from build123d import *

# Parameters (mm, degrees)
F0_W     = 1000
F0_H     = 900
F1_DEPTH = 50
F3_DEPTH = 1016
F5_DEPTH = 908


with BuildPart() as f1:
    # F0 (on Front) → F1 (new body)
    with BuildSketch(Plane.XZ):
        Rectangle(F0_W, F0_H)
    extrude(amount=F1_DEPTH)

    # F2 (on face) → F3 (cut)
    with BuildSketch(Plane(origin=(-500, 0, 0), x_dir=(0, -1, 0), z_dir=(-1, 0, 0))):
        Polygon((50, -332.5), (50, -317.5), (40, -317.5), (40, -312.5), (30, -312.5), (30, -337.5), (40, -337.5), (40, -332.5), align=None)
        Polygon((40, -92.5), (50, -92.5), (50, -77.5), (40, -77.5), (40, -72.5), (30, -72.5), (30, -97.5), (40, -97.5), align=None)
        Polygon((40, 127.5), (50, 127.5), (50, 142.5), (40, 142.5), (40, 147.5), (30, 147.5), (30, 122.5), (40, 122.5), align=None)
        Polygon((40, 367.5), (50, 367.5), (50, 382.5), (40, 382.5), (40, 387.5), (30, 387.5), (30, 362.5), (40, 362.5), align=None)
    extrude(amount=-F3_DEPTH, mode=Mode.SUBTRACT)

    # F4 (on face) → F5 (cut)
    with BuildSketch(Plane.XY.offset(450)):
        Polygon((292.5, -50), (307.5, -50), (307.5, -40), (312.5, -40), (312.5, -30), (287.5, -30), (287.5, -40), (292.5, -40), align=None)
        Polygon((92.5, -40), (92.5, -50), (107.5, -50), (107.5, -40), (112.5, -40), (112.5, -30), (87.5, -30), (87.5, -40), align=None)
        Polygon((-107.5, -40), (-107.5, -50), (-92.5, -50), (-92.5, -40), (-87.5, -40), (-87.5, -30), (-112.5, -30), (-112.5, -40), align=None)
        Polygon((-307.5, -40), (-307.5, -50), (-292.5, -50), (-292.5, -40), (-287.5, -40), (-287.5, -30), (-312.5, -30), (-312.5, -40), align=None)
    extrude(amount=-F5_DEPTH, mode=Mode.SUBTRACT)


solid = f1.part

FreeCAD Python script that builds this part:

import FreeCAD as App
import Part
import Sketcher
Q = App.Units.Quantity


def add_polygon(sketch, points):
    """Adds a closed chain of lines whose ends are joined by coincident constraints."""
    first, n = sketch.GeometryCount, len(points)
    for a, b in zip(points, points[1:] + points[:1]):
        sketch.addGeometry(Part.LineSegment(App.Vector(*a, 0), App.Vector(*b, 0)), False)
    for i in range(n):
        sketch.addConstraint(Sketcher.Constraint("Coincident", first + i, 2, first + (i + 1) % n, 1))

doc = App.newDocument("Part")
body = doc.addObject("PartDesign::Body", "Body")

# Sketch on XZ plane
sketch1 = body.newObject("Sketcher::SketchObject", "Sketch")
sketch1.AttachmentSupport = (doc.getObject("XZ_Plane"), [""])
sketch1.MapMode = "FlatFace"
add_polygon(sketch1, [(-500, 450), (-500, -450), (500, -450), (500, 450)])  # lines 0-3
sketch1.addConstraint([
    Sketcher.Constraint("Vertical", 0),
    Sketcher.Constraint("Horizontal", 1),
    Sketcher.Constraint("Vertical", 2),
    Sketcher.Constraint("Horizontal", 3),
    Sketcher.Constraint("Symmetric", 0, 2, 2, 2, -1, 1),
    Sketcher.Constraint("DistanceX", 1, 1, 1, 2, Q("1000 mm")),
    Sketcher.Constraint("DistanceY", 0, 2, 0, 1, Q("900 mm")),
])
pad1 = body.newObject("PartDesign::Pad", "Pad")
pad1.Profile = sketch1
pad1.Length = 50

# Sketch on YZ plane
sketch2 = body.newObject("Sketcher::SketchObject", "Sketch001")
sketch2.AttachmentSupport = (doc.getObject("YZ_Plane"), [""])
sketch2.MapMode = "FlatFace"
sketch2.AttachmentOffset = App.Placement(App.Vector(0, 0, -500), App.Rotation())
add_polygon(sketch2, [(-50, -332), (-50, -318), (-40, -318), (-40, -312), (-30, -312), (-30, -338), (-40, -338), (-40, -332)])  # lines 0-7
add_polygon(sketch2, [(-40, -92), (-50, -92), (-50, -78), (-40, -78), (-40, -72), (-30, -72), (-30, -98), (-40, -98)])  # lines 8-15
add_polygon(sketch2, [(-40, 128), (-50, 128), (-50, 142), (-40, 142), (-40, 148), (-30, 148), (-30, 122), (-40, 122)])  # lines 16-23
add_polygon(sketch2, [(-40, 368), (-50, 368), (-50, 382), (-40, 382), (-40, 388), (-30, 388), (-30, 362), (-40, 362)])  # lines 24-31
sketch2.addConstraint([
    Sketcher.Constraint("Vertical", 0),
    Sketcher.Constraint("Horizontal", 1),
    Sketcher.Constraint("Vertical", 2),
    Sketcher.Constraint("Horizontal", 3),
    Sketcher.Constraint("Vertical", 4),
    Sketcher.Constraint("Horizontal", 5),
    Sketcher.Constraint("Vertical", 6),
    Sketcher.Constraint("Horizontal", 7),
    Sketcher.Constraint("Horizontal", 8),
    Sketcher.Constraint("Vertical", 9),
    Sketcher.Constraint("Horizontal", 10),
    Sketcher.Constraint("Vertical", 11),
    Sketcher.Constraint("Horizontal", 12),
    Sketcher.Constraint("Vertical", 13),
    Sketcher.Constraint("Horizontal", 14),
    Sketcher.Constraint("Vertical", 15),
    Sketcher.Constraint("Horizontal", 16),
    Sketcher.Constraint("Vertical", 17),
    Sketcher.Constraint("Horizontal", 18),
    Sketcher.Constraint("Vertical", 19),
    Sketcher.Constraint("Horizontal", 20),
    Sketcher.Constraint("Vertical", 21),
    Sketcher.Constraint("Horizontal", 22),
    Sketcher.Constraint("Vertical", 23),
    Sketcher.Constraint("Horizontal", 24),
    Sketcher.Constraint("Vertical", 25),
    Sketcher.Constraint("Horizontal", 26),
    Sketcher.Constraint("Vertical", 27),
    Sketcher.Constraint("Horizontal", 28),
    Sketcher.Constraint("Vertical", 29),
    Sketcher.Constraint("Horizontal", 30),
    Sketcher.Constraint("Vertical", 31),
    Sketcher.Constraint("Vertical", 2, 2, 5, 2),
    Sketcher.Constraint("Vertical", 7, 2, 8, 2),
    Sketcher.Constraint("Vertical", 6, 2, 10, 2),
    Sketcher.Constraint("Vertical", 4, 2, 12, 2),
    Sketcher.Constraint("Vertical", 11, 2, 14, 2),
    Sketcher.Constraint("Vertical", 9, 2, 16, 2),
    Sketcher.Constraint("Vertical", 15, 2, 18, 2),
    Sketcher.Constraint("Vertical", 13, 2, 20, 2),
    Sketcher.Constraint("Vertical", 19, 2, 22, 2),
    Sketcher.Constraint("Vertical", 17, 2, 24, 2),
    Sketcher.Constraint("Vertical", 23, 2, 26, 2),
    Sketcher.Constraint("Vertical", 21, 2, 28, 2),
    Sketcher.Constraint("Vertical", 27, 2, 30, 2),
    Sketcher.Constraint("Equal", 1, 3),
    Sketcher.Constraint("Equal", 2, 6),
    Sketcher.Constraint("Equal", 0, 9),
    Sketcher.Constraint("Equal", 6, 11),
    Sketcher.Constraint("Equal", 4, 13),
    Sketcher.Constraint("Equal", 9, 17),
    Sketcher.Constraint("Equal", 15, 19),
    Sketcher.Constraint("Equal", 13, 21),
    Sketcher.Constraint("Equal", 17, 25),
    Sketcher.Constraint("Equal", 23, 27),
    Sketcher.Constraint("Equal", 21, 29),
    Sketcher.Constraint("DistanceX", 1, 1, 1, 2, Q("10 mm")),
    Sketcher.Constraint("DistanceY", 0, 1, 0, 2, Q("15 mm")),
    Sketcher.Constraint("DistanceY", 2, 1, 2, 2, Q("5 mm")),
    Sketcher.Constraint("DistanceX", 0, 2, -1, 1, Q("50 mm")),
    Sketcher.Constraint("DistanceY", 2, 2, 8, 2, Q("220 mm")),
    Sketcher.Constraint("DistanceY", 11, 2, 16, 2, Q("200 mm")),
    Sketcher.Constraint("DistanceY", 19, 2, 24, 2, Q("220 mm")),
    Sketcher.Constraint("DistanceY", 0, 2, -1, 1, Q("317.5 mm")),
])
pocket1 = body.newObject("PartDesign::Pocket", "Pocket")
pocket1.Profile = sketch2
pocket1.Length = 1016
pocket1.Reversed = True

# Sketch on XY plane
sketch3 = body.newObject("Sketcher::SketchObject", "Sketch002")
sketch3.AttachmentSupport = (doc.getObject("XY_Plane"), [""])
sketch3.MapMode = "FlatFace"
sketch3.AttachmentOffset = App.Placement(App.Vector(0, 0, 450), App.Rotation())
add_polygon(sketch3, [(292, -50), (308, -50), (308, -40), (312, -40), (312, -30), (288, -30), (288, -40), (292, -40)])  # lines 0-7
add_polygon(sketch3, [(92, -40), (92, -50), (108, -50), (108, -40), (112, -40), (112, -30), (88, -30), (88, -40)])  # lines 8-15
add_polygon(sketch3, [(-108, -40), (-108, -50), (-92, -50), (-92, -40), (-88, -40), (-88, -30), (-112, -30), (-112, -40)])  # lines 16-23
add_polygon(sketch3, [(-308, -40), (-308, -50), (-292, -50), (-292, -40), (-288, -40), (-288, -30), (-312, -30), (-312, -40)])  # lines 24-31
sketch3.addConstraint([
    Sketcher.Constraint("Horizontal", 0),
    Sketcher.Constraint("Vertical", 1),
    Sketcher.Constraint("Horizontal", 2),
    Sketcher.Constraint("Vertical", 3),
    Sketcher.Constraint("Horizontal", 4),
    Sketcher.Constraint("Vertical", 5),
    Sketcher.Constraint("Horizontal", 6),
    Sketcher.Constraint("Vertical", 7),
    Sketcher.Constraint("Vertical", 8),
    Sketcher.Constraint("Horizontal", 9),
    Sketcher.Constraint("Vertical", 10),
    Sketcher.Constraint("Horizontal", 11),
    Sketcher.Constraint("Vertical", 12),
    Sketcher.Constraint("Horizontal", 13),
    Sketcher.Constraint("Vertical", 14),
    Sketcher.Constraint("Horizontal", 15),
    Sketcher.Constraint("Vertical", 16),
    Sketcher.Constraint("Horizontal", 17),
    Sketcher.Constraint("Vertical", 18),
    Sketcher.Constraint("Horizontal", 19),
    Sketcher.Constraint("Vertical", 20),
    Sketcher.Constraint("Horizontal", 21),
    Sketcher.Constraint("Vertical", 22),
    Sketcher.Constraint("Horizontal", 23),
    Sketcher.Constraint("Vertical", 24),
    Sketcher.Constraint("Horizontal", 25),
    Sketcher.Constraint("Vertical", 26),
    Sketcher.Constraint("Horizontal", 27),
    Sketcher.Constraint("Vertical", 28),
    Sketcher.Constraint("Horizontal", 29),
    Sketcher.Constraint("Vertical", 30),
    Sketcher.Constraint("Horizontal", 31),
    Sketcher.Constraint("Symmetric", 9, 2, 16, 2, -2),
    Sketcher.Constraint("Symmetric", 15, 2, 18, 2, -2),
    Sketcher.Constraint("Symmetric", 13, 2, 20, 2, -2),
    Sketcher.Constraint("Symmetric", 11, 2, 22, 2, -2),
    Sketcher.Constraint("Symmetric", 0, 2, 24, 2, -2),
    Sketcher.Constraint("Symmetric", 6, 2, 26, 2, -2),
    Sketcher.Constraint("Symmetric", 4, 2, 28, 2, -2),
    Sketcher.Constraint("Symmetric", 2, 2, 30, 2, -2),
    Sketcher.Constraint("Horizontal", 2, 2, 5, 2),
    Sketcher.Constraint("Horizontal", 7, 2, 8, 2),
    Sketcher.Constraint("Horizontal", 6, 2, 10, 2),
    Sketcher.Constraint("Horizontal", 4, 2, 12, 2),
    Sketcher.Constraint("Horizontal", 11, 2, 14, 2),
    Sketcher.Constraint("Equal", 2, 6),
    Sketcher.Constraint("Equal", 0, 9),
    Sketcher.Constraint("Equal", 6, 11),
    Sketcher.Constraint("Equal", 4, 13),
    Sketcher.Constraint("Equal", 1, 3),
    Sketcher.Constraint("DistanceX", 0, 1, 0, 2, Q("15 mm")),
    Sketcher.Constraint("DistanceX", 2, 1, 2, 2, Q("5 mm")),
    Sketcher.Constraint("DistanceY", 1, 1, 1, 2, Q("10 mm")),
    Sketcher.Constraint("DistanceY", 0, 2, -1, 1, Q("50 mm")),
    Sketcher.Constraint("DistanceX", 8, 2, 5, 2, Q("195 mm")),
    Sketcher.Constraint("DistanceX", 16, 2, 14, 2, Q("195 mm")),
])
pocket2 = body.newObject("PartDesign::Pocket", "Pocket001")
pocket2.Profile = sketch3
pocket2.Length = 908

doc.recompute()
